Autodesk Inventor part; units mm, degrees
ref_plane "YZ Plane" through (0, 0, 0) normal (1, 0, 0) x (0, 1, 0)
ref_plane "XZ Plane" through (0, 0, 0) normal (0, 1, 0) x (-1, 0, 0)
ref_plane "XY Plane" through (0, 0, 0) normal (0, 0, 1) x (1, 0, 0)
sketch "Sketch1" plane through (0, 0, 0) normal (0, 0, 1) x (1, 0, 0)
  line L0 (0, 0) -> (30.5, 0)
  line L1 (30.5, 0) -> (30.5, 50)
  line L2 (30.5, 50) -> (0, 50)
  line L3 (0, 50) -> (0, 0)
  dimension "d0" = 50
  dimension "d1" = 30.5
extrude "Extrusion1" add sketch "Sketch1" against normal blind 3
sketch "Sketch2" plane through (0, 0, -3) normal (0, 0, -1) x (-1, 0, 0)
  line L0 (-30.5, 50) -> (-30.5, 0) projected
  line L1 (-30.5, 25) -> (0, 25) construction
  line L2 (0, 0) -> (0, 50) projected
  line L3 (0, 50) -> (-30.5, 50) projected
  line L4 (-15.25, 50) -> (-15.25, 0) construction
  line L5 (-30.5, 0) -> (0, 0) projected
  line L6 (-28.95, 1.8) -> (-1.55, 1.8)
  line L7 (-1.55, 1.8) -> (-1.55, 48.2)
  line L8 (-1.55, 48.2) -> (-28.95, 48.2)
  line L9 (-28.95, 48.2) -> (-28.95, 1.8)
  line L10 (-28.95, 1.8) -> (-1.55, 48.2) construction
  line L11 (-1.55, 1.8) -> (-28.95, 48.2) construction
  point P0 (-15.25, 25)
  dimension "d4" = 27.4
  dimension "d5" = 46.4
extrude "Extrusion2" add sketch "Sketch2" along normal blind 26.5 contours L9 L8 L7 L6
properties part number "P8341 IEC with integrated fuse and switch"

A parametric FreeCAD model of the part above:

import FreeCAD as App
import Part
import Sketcher
from FreeCAD import Vector
Q = App.Units.Quantity

doc = App.newDocument("Part")
body = doc.addObject("PartDesign::Body", "Body")

sketch1 = body.newObject("Sketcher::SketchObject", "Sketch")
sketch1.AttachmentSupport = (doc.getObject("XY_Plane"), [""])
sketch1.MapMode = "FlatFace"
sketch1.addGeometry(Part.LineSegment(Vector(0, 50, 0), Vector(0, 0, 0)), False)
sketch1.addGeometry(Part.LineSegment(Vector(0, 0, 0), Vector(30, 0, 0)), False)
sketch1.addGeometry(Part.LineSegment(Vector(30, 0, 0), Vector(30, 50, 0)), False)
sketch1.addGeometry(Part.LineSegment(Vector(30, 50, 0), Vector(0, 50, 0)), False)
sketch1.addConstraint(Sketcher.Constraint("Coincident", 0, 2, 1, 1))
sketch1.addConstraint(Sketcher.Constraint("Coincident", 1, 2, 2, 1))
sketch1.addConstraint(Sketcher.Constraint("Coincident", 2, 2, 3, 1))
sketch1.addConstraint(Sketcher.Constraint("Coincident", 3, 2, 0, 1))
sketch1.addConstraint(Sketcher.Constraint("Vertical", 0))
sketch1.addConstraint(Sketcher.Constraint("Horizontal", 1))
sketch1.addConstraint(Sketcher.Constraint("Vertical", 2))
sketch1.addConstraint(Sketcher.Constraint("Horizontal", 3))
sketch1.addConstraint(Sketcher.Constraint("Coincident", 0, 2, -1, 1))
sketch1.addConstraint(Sketcher.Constraint("DistanceY", 0, 2, 0, 1, Q("50 mm")))
sketch1.addConstraint(Sketcher.Constraint("DistanceX", 1, 1, 1, 2, Q("30.5 mm")))
pad1 = body.newObject("PartDesign::Pad", "Pad")
pad1.Profile = sketch1
pad1.Length = 3
pad1.Reversed = True

sketch2 = body.newObject("Sketcher::SketchObject", "Sketch001")
sketch2.AttachmentSupport = (doc.getObject("XY_Plane"), [""])
sketch2.MapMode = "FlatFace"
sketch2.AttachmentOffset = App.Placement(Vector(0, 0, -3), App.Rotation())
sketch2.addGeometry(Part.LineSegment(Vector(29, 48, 0), Vector(29, 2, 0)), False)
sketch2.addGeometry(Part.LineSegment(Vector(29, 2, 0), Vector(2, 2, 0)), False)
sketch2.addGeometry(Part.LineSegment(Vector(2, 2, 0), Vector(2, 48, 0)), False)
sketch2.addGeometry(Part.LineSegment(Vector(2, 48, 0), Vector(29, 48, 0)), False)
sketch2.addConstraint(Sketcher.Constraint("Coincident", 0, 2, 1, 1))
sketch2.addConstraint(Sketcher.Constraint("Coincident", 1, 2, 2, 1))
sketch2.addConstraint(Sketcher.Constraint("Coincident", 2, 2, 3, 1))
sketch2.addConstraint(Sketcher.Constraint("Coincident", 3, 2, 0, 1))
sketch2.addConstraint(Sketcher.Constraint("Vertical", 0))
sketch2.addConstraint(Sketcher.Constraint("Horizontal", 1))
sketch2.addConstraint(Sketcher.Constraint("Vertical", 2))
sketch2.addConstraint(Sketcher.Constraint("Horizontal", 3))
sketch2.addConstraint(Sketcher.Constraint("DistanceX", 1, 2, 1, 1, Q("27.4 mm")))
sketch2.addConstraint(Sketcher.Constraint("DistanceY", 0, 2, 0, 1, Q("46.4 mm")))
sketch2.addConstraint(Sketcher.Constraint("DistanceY", -1, 1, 0, 2, Q("1.8 mm")))
sketch2.addConstraint(Sketcher.Constraint("DistanceX", -1, 1, 0, 2, Q("28.95 mm")))
pad2 = body.newObject("PartDesign::Pad", "Pad001")
pad2.Profile = sketch2
pad2.Length = 26.5
pad2.Reversed = True

doc.recompute()
